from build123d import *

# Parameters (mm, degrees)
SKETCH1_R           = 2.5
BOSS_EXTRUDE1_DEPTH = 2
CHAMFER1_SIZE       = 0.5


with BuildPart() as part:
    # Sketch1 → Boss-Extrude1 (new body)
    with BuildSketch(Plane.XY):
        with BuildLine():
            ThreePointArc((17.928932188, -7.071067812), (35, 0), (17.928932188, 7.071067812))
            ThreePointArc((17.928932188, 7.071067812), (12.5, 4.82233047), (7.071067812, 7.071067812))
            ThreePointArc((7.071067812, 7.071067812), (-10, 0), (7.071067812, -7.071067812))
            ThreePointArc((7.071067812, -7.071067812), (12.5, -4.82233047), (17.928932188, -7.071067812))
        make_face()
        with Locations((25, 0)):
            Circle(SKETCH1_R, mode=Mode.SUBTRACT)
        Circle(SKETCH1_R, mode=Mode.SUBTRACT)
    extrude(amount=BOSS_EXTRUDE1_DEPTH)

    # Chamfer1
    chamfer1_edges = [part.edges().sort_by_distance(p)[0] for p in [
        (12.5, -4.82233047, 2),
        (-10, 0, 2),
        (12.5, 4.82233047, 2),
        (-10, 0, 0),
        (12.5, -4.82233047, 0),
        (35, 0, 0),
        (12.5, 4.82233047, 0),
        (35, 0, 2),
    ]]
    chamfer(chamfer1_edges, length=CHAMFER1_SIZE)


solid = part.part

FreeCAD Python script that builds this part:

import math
import FreeCAD as App
import Part
import Sketcher

V = App.Vector
Q = App.Units.Quantity


def edges_at(feature, points):
    """Names of the edges that pass closest to the given points."""
    edges = feature.Shape.Edges
    near = lambda p: min(range(len(edges)), key=lambda i: edges[i].distToShape(Part.Vertex(*p))[0])
    return sorted({f"Edge{near(p) + 1}" for p in points})

doc = App.newDocument("Part")
body = doc.addObject("PartDesign::Body", "Body")

sketch1 = body.newObject("Sketcher::SketchObject", "Sketch")
sketch1.AttachmentSupport = (doc.getObject("XY_Plane"), [""])
sketch1.MapMode = "FlatFace"
sketch1.addGeometry(Part.ArcOfCircle(Part.Circle(V(25, 0, 0), V(0, 0, 1), 10), math.radians(-135), math.radians(135)), False)
sketch1.addGeometry(Part.ArcOfCircle(Part.Circle(V(12.5, 12.5, 0), V(0, 0, 1), 7.7), math.radians(-135), math.radians(-45)), False)
sketch1.addGeometry(Part.ArcOfCircle(Part.Circle(V(0, 0, 0), V(0, 0, 1), 10), math.radians(45), math.radians(315)), False)
sketch1.addGeometry(Part.ArcOfCircle(Part.Circle(V(12.5, -12.5, 0), V(0, 0, 1), 7.7), math.radians(45), math.radians(135)), False)
sketch1.addGeometry(Part.Circle(V(0, 0, 0), V(0, 0, 1), 2.5), False)
sketch1.addGeometry(Part.Circle(V(25, 0, 0), V(0, 0, 1), 2.5), False)
sketch1.addConstraint(Sketcher.Constraint("Tangent", 0, 2, 1, 2))
sketch1.addConstraint(Sketcher.Constraint("Tangent", 1, 1, 2, 1))
sketch1.addConstraint(Sketcher.Constraint("Tangent", 2, 2, 3, 2))
sketch1.addConstraint(Sketcher.Constraint("Tangent", 3, 1, 0, 1))
sketch1.addConstraint(Sketcher.Constraint("Coincident", 2, 3, -1, 1))
sketch1.addConstraint(Sketcher.Constraint("Coincident", 4, 3, -1, 1))
sketch1.addConstraint(Sketcher.Constraint("Coincident", 5, 3, 0, 3))
sketch1.addConstraint(Sketcher.Constraint("Equal", 0, 2))
sketch1.addConstraint(Sketcher.Constraint("Equal", 1, 3))
sketch1.addConstraint(Sketcher.Constraint("Equal", 4, 5))
sketch1.addConstraint(Sketcher.Constraint("PointOnObject", 0, 3, -1))
sketch1.addConstraint(Sketcher.Constraint("Diameter", 4, Q("5 mm")))
sketch1.addConstraint(Sketcher.Constraint("Radius", 0, Q("10 mm")))
sketch1.addConstraint(Sketcher.Constraint("DistanceX", -1, 1, 0, 3, Q("25 mm")))
sketch1.addConstraint(Sketcher.Constraint("DistanceY", 3, 3, 1, 3, Q("25 mm")))
pad1 = body.newObject("PartDesign::Pad", "Pad")
pad1.Profile = sketch1
pad1.Length = 2
doc.recompute()

chamfer = body.newObject("PartDesign::Chamfer", "Chamfer")
chamfer.Base = (pad1, edges_at(pad1, [
    (12.5, -4.822, 2),
    (-10, 0, 2),
    (12.5, 4.822, 2),
    (-10, 0, 0),
    (12.5, -4.822, 0),
    (35, 0, 0),
    (12.5, 4.822, 0),
    (35, 0, 2),
]))
chamfer.Size = 0.5

doc.recompute()
